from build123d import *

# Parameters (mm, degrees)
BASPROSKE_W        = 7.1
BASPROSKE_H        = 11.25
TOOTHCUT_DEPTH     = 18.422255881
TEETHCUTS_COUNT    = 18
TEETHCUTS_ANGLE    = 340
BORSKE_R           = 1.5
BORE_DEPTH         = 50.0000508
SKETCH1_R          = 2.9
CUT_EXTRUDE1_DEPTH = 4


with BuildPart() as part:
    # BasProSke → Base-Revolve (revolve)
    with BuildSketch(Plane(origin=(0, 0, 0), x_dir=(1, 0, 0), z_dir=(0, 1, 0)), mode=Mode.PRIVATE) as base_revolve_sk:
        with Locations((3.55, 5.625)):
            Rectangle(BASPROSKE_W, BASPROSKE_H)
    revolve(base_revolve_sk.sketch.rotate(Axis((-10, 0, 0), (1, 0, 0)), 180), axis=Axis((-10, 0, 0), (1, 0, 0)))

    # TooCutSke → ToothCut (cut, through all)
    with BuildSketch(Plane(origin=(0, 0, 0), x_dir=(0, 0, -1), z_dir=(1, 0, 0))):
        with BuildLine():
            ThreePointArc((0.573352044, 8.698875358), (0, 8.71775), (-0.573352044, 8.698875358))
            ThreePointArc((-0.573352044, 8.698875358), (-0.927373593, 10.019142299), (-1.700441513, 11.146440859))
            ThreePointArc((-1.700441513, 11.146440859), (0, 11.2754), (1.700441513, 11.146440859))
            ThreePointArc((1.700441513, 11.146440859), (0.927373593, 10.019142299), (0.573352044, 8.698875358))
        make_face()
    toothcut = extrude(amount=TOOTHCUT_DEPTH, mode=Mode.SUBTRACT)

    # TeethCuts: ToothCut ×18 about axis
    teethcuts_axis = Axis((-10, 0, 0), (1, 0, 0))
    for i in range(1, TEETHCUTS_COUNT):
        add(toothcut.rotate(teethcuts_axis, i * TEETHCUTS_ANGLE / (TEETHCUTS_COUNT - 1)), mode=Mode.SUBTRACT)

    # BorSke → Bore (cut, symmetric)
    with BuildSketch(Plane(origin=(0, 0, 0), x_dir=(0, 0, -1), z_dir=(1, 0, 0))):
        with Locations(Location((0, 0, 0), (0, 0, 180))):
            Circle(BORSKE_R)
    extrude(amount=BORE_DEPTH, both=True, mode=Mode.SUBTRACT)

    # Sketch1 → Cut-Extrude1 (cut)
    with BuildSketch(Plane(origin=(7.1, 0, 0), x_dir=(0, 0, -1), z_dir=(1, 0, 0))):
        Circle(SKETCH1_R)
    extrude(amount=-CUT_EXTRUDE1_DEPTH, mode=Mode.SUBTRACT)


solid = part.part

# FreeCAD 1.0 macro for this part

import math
import FreeCAD as App
import Part
import Sketcher
from FreeCAD import Vector
Q = App.Units.Quantity

doc = App.newDocument("Part")
body = doc.addObject("PartDesign::Body", "Body")

# Sketch on XZ plane
sketch1 = body.newObject("Sketcher::SketchObject", "Sketch")
sketch1.AttachmentSupport = (doc.getObject("XZ_Plane"), [""])
sketch1.MapMode = "FlatFace"
sketch1.addGeometry([
    Part.LineSegment(Vector(0, -11.25, 0), Vector(0, 0, 0)),
    Part.LineSegment(Vector(0, 0, 0), Vector(7.1, 0, 0)),
    Part.LineSegment(Vector(7.1, 0, 0), Vector(7.1, -11.25, 0)),
    Part.LineSegment(Vector(7.1, -11.25, 0), Vector(0, -11.25, 0)),
], False)
sketch1.addConstraint([
    Sketcher.Constraint("Coincident", 0, 2, 1, 1),
    Sketcher.Constraint("Coincident", 1, 2, 2, 1),
    Sketcher.Constraint("Coincident", 2, 2, 3, 1),
    Sketcher.Constraint("Coincident", 3, 2, 0, 1),
    Sketcher.Constraint("Vertical", 0),
    Sketcher.Constraint("Horizontal", 1),
    Sketcher.Constraint("Vertical", 2),
    Sketcher.Constraint("Horizontal", 3),
    Sketcher.Constraint("Coincident", 0, 2, -1, 1),
    Sketcher.Constraint("DistanceX", 1, 1, 1, 2, Q("7.1 mm")),
    Sketcher.Constraint("DistanceY", 0, 1, 0, 2, Q("11.25 mm")),
])
revolution = body.newObject("PartDesign::Revolution", "Revolution")
revolution.Profile = sketch1
revolution.ReferenceAxis = (sketch1, ["H_Axis"])
revolution.Angle = 360

# Sketch on YZ plane
sketch2 = body.newObject("Sketcher::SketchObject", "Sketch001")
sketch2.AttachmentSupport = (doc.getObject("YZ_Plane"), [""])
sketch2.MapMode = "FlatFace"
sketch2.addGeometry([
    Part.ArcOfCircle(Part.Circle(Vector(0, 0, 0), Vector(0, 0, 1), 8.71775), math.radians(-3.770971), math.radians(3.770971)),
    Part.ArcOfCircle(Part.Circle(Vector(8.325125, -4.60607, 0), Vector(0, 0, 1), 4.05), math.radians(45.843444), math.radians(84.704973)),
    Part.ArcOfCircle(Part.Circle(Vector(0, 0, 0), Vector(0, 0, 1), 11.2754), math.radians(-8.673862), math.radians(8.673862)),
    Part.ArcOfCircle(Part.Circle(Vector(8.325125, 4.60607, 0), Vector(0, 0, 1), 4.05), math.radians(-84.704973), math.radians(-45.843444)),
], False)
sketch2.addConstraint([
    Sketcher.Constraint("Coincident", 0, 1, 1, 2),
    Sketcher.Constraint("Coincident", 1, 1, 2, 1),
    Sketcher.Constraint("Coincident", 2, 2, 3, 2),
    Sketcher.Constraint("Coincident", 3, 1, 0, 2),
    Sketcher.Constraint("Coincident", 0, 3, -1, 1),
    Sketcher.Constraint("Coincident", 2, 3, -1, 1),
    Sketcher.Constraint("Equal", 1, 3),
    Sketcher.Constraint("Symmetric", 1, 3, 3, 3, -1),
    Sketcher.Constraint("Radius", 1, Q("4.05 mm")),
    Sketcher.Constraint("Radius", 2, Q("11.2754 mm")),
    Sketcher.Constraint("Radius", 0, Q("8.71775 mm")),
    Sketcher.Constraint("DistanceY", 1, 3, -1, 1, Q("4.60607 mm")),
    Sketcher.Constraint("DistanceX", -1, 1, 1, 1, Q("11.146441 mm")),
])
pocket1 = body.newObject("PartDesign::Pocket", "Pocket")
pocket1.Profile = sketch2
pocket1.Type = "ThroughAll"
pocket1.Reversed = True
doc.recompute()

polarpattern = body.newObject("PartDesign::PolarPattern", "PolarPattern")
polarpattern.Originals = [pocket1]
polarpattern.Axis = (doc.getObject("X_Axis"), [""])
polarpattern.Angle = 360
polarpattern.Occurrences = 18
body.Tip = polarpattern

# Sketch on YZ plane
sketch3 = body.newObject("Sketcher::SketchObject", "Sketch002")
sketch3.AttachmentSupport = (doc.getObject("YZ_Plane"), [""])
sketch3.MapMode = "FlatFace"
sketch3.addGeometry(Part.Circle(Vector(0, 0, 0), Vector(0, 0, 1), 1.5), False)
sketch3.addConstraint([
    Sketcher.Constraint("Coincident", 0, 3, -1, 1),
    Sketcher.Constraint("Diameter", 0, Q("3 mm")),
])
pocket2 = body.newObject("PartDesign::Pocket", "Pocket001")
pocket2.Profile = sketch3
pocket2.Length = 100.000102
pocket2.Midplane = True

# Sketch on YZ plane
sketch4 = body.newObject("Sketcher::SketchObject", "Sketch003")
sketch4.AttachmentSupport = (doc.getObject("YZ_Plane"), [""])
sketch4.MapMode = "FlatFace"
sketch4.AttachmentOffset = App.Placement(Vector(0, 0, 7.1), App.Rotation())
sketch4.addGeometry(Part.Circle(Vector(0, 0, 0), Vector(0, 0, 1), 2.9), False)
sketch4.addConstraint([
    Sketcher.Constraint("Coincident", 0, 3, -1, 1),
    Sketcher.Constraint("Diameter", 0, Q("5.8 mm")),
])
pocket3 = body.newObject("PartDesign::Pocket", "Pocket002")
pocket3.Profile = sketch4
pocket3.Length = 4

doc.recompute()
